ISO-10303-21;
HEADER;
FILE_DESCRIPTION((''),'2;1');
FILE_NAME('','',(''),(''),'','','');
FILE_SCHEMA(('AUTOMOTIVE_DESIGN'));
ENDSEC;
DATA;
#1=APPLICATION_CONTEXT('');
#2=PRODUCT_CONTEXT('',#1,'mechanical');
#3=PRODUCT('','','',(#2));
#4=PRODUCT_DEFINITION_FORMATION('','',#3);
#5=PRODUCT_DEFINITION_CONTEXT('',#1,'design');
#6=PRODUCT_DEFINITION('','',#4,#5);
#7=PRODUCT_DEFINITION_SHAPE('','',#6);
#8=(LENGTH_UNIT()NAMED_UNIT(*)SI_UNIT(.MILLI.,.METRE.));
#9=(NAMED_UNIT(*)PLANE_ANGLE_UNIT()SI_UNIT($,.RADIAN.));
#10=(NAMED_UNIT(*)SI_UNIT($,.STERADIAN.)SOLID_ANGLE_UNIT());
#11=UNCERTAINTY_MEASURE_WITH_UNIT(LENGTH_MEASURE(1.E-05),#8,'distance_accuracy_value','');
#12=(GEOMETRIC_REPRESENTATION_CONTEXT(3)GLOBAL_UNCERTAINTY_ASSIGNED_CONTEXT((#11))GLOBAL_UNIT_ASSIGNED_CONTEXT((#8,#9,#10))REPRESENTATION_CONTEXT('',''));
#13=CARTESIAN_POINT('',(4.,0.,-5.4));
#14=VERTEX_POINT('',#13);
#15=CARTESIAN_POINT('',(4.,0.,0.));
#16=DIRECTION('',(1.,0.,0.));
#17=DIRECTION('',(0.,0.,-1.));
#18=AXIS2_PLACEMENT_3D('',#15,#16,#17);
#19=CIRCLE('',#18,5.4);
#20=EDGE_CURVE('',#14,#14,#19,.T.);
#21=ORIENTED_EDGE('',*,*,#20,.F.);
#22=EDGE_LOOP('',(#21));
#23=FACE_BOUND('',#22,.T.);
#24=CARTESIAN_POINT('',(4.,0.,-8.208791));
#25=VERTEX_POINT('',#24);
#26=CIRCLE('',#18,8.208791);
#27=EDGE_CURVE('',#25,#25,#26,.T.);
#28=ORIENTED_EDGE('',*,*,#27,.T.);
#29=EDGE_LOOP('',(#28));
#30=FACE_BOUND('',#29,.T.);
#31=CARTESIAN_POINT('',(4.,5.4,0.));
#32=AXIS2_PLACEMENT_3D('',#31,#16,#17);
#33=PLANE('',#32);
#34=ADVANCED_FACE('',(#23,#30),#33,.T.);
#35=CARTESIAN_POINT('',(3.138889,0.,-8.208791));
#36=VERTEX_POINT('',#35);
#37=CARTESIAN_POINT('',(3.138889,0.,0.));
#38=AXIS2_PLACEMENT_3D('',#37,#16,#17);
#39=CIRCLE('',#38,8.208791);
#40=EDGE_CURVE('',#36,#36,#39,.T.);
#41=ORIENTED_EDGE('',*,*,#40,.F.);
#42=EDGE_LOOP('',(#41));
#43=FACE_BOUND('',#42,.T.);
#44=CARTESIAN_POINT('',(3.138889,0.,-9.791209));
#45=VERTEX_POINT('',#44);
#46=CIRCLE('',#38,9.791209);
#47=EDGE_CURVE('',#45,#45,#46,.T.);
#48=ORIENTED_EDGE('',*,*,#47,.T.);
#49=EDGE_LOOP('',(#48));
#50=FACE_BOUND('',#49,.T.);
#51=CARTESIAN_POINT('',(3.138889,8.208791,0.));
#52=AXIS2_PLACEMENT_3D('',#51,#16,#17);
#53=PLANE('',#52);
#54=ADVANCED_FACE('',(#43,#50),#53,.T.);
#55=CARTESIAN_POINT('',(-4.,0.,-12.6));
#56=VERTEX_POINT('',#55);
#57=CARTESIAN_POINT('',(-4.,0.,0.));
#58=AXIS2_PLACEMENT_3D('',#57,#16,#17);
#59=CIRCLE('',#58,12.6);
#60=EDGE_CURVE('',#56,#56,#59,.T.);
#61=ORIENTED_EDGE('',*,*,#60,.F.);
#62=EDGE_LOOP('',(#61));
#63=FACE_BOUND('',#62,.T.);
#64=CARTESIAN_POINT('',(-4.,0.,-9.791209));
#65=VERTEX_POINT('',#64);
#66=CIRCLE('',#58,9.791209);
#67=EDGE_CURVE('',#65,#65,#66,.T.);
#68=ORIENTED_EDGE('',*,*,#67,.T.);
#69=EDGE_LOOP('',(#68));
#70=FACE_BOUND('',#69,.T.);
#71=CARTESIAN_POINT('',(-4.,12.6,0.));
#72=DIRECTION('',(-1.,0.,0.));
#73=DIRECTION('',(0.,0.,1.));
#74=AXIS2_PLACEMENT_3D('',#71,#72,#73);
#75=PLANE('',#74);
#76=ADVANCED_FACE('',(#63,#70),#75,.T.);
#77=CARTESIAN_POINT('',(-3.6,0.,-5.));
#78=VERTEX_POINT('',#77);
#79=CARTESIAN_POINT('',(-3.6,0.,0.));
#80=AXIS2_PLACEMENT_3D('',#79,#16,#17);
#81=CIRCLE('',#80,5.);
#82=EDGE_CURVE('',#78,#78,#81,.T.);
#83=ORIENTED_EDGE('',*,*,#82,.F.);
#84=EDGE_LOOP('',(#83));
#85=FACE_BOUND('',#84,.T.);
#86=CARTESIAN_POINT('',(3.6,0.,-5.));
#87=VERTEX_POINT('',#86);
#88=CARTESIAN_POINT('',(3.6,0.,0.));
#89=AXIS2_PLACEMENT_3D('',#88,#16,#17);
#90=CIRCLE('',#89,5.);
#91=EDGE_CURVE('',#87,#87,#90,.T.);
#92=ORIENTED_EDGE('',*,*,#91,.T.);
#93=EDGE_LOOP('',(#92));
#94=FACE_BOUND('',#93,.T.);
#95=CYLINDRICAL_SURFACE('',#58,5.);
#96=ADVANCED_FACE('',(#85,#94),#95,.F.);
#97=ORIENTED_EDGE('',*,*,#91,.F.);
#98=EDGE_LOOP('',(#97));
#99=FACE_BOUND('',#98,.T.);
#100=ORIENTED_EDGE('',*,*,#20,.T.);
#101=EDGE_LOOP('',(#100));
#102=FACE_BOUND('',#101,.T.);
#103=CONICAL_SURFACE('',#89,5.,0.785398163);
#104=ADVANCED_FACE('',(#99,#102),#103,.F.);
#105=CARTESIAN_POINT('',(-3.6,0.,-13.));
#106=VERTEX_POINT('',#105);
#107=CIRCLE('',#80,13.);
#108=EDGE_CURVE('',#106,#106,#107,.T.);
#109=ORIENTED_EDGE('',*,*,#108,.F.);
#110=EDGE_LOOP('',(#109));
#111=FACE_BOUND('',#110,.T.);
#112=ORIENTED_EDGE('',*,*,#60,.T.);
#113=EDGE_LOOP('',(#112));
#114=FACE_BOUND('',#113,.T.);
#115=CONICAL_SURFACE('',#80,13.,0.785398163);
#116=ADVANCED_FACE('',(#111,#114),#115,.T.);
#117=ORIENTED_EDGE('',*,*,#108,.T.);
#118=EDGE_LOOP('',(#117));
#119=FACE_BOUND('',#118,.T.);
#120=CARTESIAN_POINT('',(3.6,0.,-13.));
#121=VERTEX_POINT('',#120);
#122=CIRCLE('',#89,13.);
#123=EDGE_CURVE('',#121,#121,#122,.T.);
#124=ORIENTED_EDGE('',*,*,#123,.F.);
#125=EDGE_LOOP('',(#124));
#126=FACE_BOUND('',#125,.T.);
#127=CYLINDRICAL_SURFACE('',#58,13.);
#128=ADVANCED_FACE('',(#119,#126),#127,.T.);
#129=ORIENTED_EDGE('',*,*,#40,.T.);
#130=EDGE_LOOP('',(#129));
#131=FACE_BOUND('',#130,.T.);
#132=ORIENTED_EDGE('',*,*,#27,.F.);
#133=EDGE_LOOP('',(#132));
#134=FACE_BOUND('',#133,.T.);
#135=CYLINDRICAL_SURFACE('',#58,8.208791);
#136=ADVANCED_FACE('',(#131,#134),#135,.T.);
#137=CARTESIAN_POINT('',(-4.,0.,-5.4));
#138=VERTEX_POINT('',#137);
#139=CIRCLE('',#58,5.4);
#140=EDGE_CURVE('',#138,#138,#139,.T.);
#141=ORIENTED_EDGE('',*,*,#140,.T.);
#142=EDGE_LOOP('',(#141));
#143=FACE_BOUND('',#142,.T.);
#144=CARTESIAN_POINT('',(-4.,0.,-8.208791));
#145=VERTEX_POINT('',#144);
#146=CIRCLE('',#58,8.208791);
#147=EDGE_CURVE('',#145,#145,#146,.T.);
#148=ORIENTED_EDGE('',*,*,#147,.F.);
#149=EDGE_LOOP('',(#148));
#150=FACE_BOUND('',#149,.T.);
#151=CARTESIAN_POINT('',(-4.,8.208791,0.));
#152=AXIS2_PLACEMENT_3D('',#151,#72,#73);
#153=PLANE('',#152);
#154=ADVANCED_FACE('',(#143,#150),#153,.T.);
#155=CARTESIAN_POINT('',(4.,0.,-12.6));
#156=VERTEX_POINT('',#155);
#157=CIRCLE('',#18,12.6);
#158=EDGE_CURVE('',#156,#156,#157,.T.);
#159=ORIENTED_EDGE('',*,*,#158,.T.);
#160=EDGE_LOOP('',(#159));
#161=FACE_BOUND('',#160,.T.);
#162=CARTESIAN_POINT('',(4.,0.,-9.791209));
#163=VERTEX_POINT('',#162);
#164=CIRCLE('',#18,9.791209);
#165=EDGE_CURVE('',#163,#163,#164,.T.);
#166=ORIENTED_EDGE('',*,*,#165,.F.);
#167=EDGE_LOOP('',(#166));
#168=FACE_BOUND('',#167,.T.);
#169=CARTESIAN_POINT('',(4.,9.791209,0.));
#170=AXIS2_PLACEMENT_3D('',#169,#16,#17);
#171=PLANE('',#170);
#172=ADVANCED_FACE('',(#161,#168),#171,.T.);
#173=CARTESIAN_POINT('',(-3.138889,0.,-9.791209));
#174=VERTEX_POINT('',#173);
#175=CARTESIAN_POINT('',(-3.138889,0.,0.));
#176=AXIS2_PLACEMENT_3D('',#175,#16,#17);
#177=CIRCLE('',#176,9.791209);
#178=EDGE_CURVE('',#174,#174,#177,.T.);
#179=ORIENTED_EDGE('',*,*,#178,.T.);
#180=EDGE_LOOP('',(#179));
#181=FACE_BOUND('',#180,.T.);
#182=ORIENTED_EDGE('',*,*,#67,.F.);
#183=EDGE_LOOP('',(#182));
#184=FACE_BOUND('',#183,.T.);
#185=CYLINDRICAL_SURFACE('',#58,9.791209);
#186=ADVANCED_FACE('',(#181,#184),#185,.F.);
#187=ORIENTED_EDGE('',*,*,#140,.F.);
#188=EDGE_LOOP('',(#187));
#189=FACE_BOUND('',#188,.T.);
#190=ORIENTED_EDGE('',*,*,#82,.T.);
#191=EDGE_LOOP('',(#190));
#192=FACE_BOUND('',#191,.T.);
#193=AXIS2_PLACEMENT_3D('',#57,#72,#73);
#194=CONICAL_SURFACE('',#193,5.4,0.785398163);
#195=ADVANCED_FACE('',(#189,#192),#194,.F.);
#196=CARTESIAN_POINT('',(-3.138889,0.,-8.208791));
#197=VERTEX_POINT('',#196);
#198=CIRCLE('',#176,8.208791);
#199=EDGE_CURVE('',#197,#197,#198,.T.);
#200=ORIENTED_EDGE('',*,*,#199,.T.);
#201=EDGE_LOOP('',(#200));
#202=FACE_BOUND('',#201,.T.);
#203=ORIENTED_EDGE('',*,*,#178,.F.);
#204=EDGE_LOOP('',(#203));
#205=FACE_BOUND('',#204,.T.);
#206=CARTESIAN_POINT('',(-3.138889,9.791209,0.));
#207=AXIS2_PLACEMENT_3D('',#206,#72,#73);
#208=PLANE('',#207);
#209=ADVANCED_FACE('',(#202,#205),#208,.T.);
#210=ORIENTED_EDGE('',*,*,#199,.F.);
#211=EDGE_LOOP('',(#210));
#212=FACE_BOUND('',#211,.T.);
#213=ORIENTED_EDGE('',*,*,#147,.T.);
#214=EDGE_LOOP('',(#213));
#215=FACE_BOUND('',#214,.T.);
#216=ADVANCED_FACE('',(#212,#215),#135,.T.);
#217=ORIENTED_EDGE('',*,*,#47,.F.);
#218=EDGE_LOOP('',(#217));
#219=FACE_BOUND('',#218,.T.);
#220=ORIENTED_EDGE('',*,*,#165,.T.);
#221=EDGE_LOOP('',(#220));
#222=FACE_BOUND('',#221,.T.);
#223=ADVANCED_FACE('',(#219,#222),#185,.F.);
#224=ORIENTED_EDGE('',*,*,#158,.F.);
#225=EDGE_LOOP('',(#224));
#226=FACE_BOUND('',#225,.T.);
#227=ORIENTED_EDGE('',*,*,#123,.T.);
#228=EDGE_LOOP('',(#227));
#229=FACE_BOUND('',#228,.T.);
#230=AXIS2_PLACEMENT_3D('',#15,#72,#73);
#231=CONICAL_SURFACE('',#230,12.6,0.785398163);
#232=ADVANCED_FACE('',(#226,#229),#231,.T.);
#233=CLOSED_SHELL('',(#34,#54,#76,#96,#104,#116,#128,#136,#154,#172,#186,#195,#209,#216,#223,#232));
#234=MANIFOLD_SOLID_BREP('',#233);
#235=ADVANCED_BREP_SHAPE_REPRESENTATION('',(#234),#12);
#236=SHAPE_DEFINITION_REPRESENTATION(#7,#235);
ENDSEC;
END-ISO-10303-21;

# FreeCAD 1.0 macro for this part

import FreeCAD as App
import Part
import Sketcher
from FreeCAD import Vector
Q = App.Units.Quantity

doc = App.newDocument("Part")
body = doc.addObject("PartDesign::Body", "Body")

sketch1 = body.newObject("Sketcher::SketchObject", "Sketch")
sketch1.AttachmentSupport = (doc.getObject("XY_Plane"), [""])
sketch1.MapMode = "FlatFace"
sketch1.addGeometry([
    Part.LineSegment(Vector(4, 12.6, 0), Vector(3.6, 13, 0)),
    Part.LineSegment(Vector(3.6, 13, 0), Vector(-3.6, 13, 0)),
    Part.LineSegment(Vector(-3.6, 13, 0), Vector(-4, 12.6, 0)),
    Part.LineSegment(Vector(-4, 12.6, 0), Vector(-4, 9.791209, 0)),
    Part.LineSegment(Vector(-4, 9.791209, 0), Vector(-3.138889, 9.791209, 0)),
    Part.LineSegment(Vector(-3.138889, 9.791209, 0), Vector(-3.138889, 8.208791, 0)),
    Part.LineSegment(Vector(-3.138889, 8.208791, 0), Vector(-4, 8.208791, 0)),
    Part.LineSegment(Vector(-4, 8.208791, 0), Vector(-4, 5.4, 0)),
    Part.LineSegment(Vector(-4, 5.4, 0), Vector(-3.6, 5, 0)),
    Part.LineSegment(Vector(-3.6, 5, 0), Vector(3.6, 5, 0)),
    Part.LineSegment(Vector(3.6, 5, 0), Vector(4, 5.4, 0)),
    Part.LineSegment(Vector(4, 5.4, 0), Vector(4, 8.208791, 0)),
    Part.LineSegment(Vector(4, 8.208791, 0), Vector(3.138889, 8.208791, 0)),
    Part.LineSegment(Vector(3.138889, 8.208791, 0), Vector(3.138889, 9.791209, 0)),
    Part.LineSegment(Vector(3.138889, 9.791209, 0), Vector(4, 9.791209, 0)),
    Part.LineSegment(Vector(4, 9.791209, 0), Vector(4, 12.6, 0)),
], False)
sketch1.addConstraint([
    Sketcher.Constraint("Coincident", 0, 2, 1, 1),
    Sketcher.Constraint("Coincident", 1, 2, 2, 1),
    Sketcher.Constraint("Coincident", 2, 2, 3, 1),
    Sketcher.Constraint("Coincident", 3, 2, 4, 1),
    Sketcher.Constraint("Coincident", 4, 2, 5, 1),
    Sketcher.Constraint("Coincident", 5, 2, 6, 1),
    Sketcher.Constraint("Coincident", 6, 2, 7, 1),
    Sketcher.Constraint("Coincident", 7, 2, 8, 1),
    Sketcher.Constraint("Coincident", 8, 2, 9, 1),
    Sketcher.Constraint("Coincident", 9, 2, 10, 1),
    Sketcher.Constraint("Coincident", 10, 2, 11, 1),
    Sketcher.Constraint("Coincident", 11, 2, 12, 1),
    Sketcher.Constraint("Coincident", 12, 2, 13, 1),
    Sketcher.Constraint("Coincident", 13, 2, 14, 1),
    Sketcher.Constraint("Coincident", 14, 2, 15, 1),
    Sketcher.Constraint("Coincident", 15, 2, 0, 1),
    Sketcher.Constraint("Horizontal", 1),
    Sketcher.Constraint("Vertical", 3),
    Sketcher.Constraint("Horizontal", 4),
    Sketcher.Constraint("Vertical", 5),
    Sketcher.Constraint("Horizontal", 6),
    Sketcher.Constraint("Vertical", 7),
    Sketcher.Constraint("Horizontal", 9),
    Sketcher.Constraint("Vertical", 11),
    Sketcher.Constraint("Horizontal", 12),
    Sketcher.Constraint("Vertical", 13),
    Sketcher.Constraint("Horizontal", 14),
    Sketcher.Constraint("Vertical", 15),
    Sketcher.Constraint("Symmetric", 7, 2, 10, 2, -2),
    Sketcher.Constraint("Symmetric", 5, 2, 12, 2, -2),
    Sketcher.Constraint("Symmetric", 3, 2, 14, 2, -2),
    Sketcher.Constraint("Perpendicular", 0, 2),
    Sketcher.Constraint("Perpendicular", 2, 8),
    Sketcher.Constraint("Perpendicular", 8, 10),
    Sketcher.Constraint("Horizontal", 2, 2, 15, 2),
    Sketcher.Constraint("Vertical", 3, 2, 6, 2),
    Sketcher.Constraint("Vertical", 1, 2, 8, 2),
    Sketcher.Constraint("Vertical", 0, 2, 9, 2),
    Sketcher.Constraint("Equal", 3, 7),
    Sketcher.Constraint("DistanceX", 1, 2, 1, 1, Q("7.2 mm")),
    Sketcher.Constraint("DistanceY", -1, 1, 0, 2, Q("13 mm")),
    Sketcher.Constraint("DistanceX", 2, 2, -1, 1, Q("4 mm")),
    Sketcher.Constraint("DistanceY", -1, 1, 8, 2, Q("5 mm")),
    Sketcher.Constraint("DistanceX", 4, 1, 4, 2, Q("0.861111 mm")),
    Sketcher.Constraint("DistanceY", 3, 2, 3, 1, Q("2.808791 mm")),
])
revolution = body.newObject("PartDesign::Revolution", "Revolution")
revolution.Profile = sketch1
revolution.ReferenceAxis = (sketch1, ["H_Axis"])
revolution.Angle = 360

doc.recompute()
